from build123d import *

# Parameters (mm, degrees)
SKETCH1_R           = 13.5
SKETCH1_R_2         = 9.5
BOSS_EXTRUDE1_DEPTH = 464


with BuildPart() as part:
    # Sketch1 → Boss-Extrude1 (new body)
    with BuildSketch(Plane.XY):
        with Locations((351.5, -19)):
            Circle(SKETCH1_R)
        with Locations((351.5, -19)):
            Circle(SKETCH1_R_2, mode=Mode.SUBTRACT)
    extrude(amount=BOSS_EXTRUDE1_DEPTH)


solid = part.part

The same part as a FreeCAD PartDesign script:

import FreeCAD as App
import Part
import Sketcher

V = App.Vector

doc = App.newDocument("Part")
body = doc.addObject("PartDesign::Body", "Body")

sketch1 = doc.addObject("Sketcher::SketchObject", "Sketch")
body.addObject(sketch1)
sketch1.AttachmentSupport = (doc.XY_Plane, [""])
sketch1.MapMode = "FlatFace"
sketch1.addGeometry(Part.Circle(V(352, -19, 0), V(0, 0, 1), 14), False)
sketch1.addGeometry(Part.Circle(V(352, -19, 0), V(0, 0, 1), 10), False)
sketch1.addConstraint(Sketcher.Constraint("Coincident", 1, 3, 0, 3))
sketch1.addConstraint(Sketcher.Constraint("Diameter", 0, 27.0))
sketch1.addConstraint(Sketcher.Constraint("Diameter", 1, 19.0))
sketch1.addConstraint(Sketcher.Constraint("DistanceY", 0, 3, -1, 1, 19.0))
sketch1.addConstraint(Sketcher.Constraint("DistanceX", -1, 1, 0, 3, 351.5))
pad1 = doc.addObject("PartDesign::Pad", "Pad")
body.addObject(pad1)
pad1.Profile = sketch1
pad1.Length = 464

doc.recompute()
